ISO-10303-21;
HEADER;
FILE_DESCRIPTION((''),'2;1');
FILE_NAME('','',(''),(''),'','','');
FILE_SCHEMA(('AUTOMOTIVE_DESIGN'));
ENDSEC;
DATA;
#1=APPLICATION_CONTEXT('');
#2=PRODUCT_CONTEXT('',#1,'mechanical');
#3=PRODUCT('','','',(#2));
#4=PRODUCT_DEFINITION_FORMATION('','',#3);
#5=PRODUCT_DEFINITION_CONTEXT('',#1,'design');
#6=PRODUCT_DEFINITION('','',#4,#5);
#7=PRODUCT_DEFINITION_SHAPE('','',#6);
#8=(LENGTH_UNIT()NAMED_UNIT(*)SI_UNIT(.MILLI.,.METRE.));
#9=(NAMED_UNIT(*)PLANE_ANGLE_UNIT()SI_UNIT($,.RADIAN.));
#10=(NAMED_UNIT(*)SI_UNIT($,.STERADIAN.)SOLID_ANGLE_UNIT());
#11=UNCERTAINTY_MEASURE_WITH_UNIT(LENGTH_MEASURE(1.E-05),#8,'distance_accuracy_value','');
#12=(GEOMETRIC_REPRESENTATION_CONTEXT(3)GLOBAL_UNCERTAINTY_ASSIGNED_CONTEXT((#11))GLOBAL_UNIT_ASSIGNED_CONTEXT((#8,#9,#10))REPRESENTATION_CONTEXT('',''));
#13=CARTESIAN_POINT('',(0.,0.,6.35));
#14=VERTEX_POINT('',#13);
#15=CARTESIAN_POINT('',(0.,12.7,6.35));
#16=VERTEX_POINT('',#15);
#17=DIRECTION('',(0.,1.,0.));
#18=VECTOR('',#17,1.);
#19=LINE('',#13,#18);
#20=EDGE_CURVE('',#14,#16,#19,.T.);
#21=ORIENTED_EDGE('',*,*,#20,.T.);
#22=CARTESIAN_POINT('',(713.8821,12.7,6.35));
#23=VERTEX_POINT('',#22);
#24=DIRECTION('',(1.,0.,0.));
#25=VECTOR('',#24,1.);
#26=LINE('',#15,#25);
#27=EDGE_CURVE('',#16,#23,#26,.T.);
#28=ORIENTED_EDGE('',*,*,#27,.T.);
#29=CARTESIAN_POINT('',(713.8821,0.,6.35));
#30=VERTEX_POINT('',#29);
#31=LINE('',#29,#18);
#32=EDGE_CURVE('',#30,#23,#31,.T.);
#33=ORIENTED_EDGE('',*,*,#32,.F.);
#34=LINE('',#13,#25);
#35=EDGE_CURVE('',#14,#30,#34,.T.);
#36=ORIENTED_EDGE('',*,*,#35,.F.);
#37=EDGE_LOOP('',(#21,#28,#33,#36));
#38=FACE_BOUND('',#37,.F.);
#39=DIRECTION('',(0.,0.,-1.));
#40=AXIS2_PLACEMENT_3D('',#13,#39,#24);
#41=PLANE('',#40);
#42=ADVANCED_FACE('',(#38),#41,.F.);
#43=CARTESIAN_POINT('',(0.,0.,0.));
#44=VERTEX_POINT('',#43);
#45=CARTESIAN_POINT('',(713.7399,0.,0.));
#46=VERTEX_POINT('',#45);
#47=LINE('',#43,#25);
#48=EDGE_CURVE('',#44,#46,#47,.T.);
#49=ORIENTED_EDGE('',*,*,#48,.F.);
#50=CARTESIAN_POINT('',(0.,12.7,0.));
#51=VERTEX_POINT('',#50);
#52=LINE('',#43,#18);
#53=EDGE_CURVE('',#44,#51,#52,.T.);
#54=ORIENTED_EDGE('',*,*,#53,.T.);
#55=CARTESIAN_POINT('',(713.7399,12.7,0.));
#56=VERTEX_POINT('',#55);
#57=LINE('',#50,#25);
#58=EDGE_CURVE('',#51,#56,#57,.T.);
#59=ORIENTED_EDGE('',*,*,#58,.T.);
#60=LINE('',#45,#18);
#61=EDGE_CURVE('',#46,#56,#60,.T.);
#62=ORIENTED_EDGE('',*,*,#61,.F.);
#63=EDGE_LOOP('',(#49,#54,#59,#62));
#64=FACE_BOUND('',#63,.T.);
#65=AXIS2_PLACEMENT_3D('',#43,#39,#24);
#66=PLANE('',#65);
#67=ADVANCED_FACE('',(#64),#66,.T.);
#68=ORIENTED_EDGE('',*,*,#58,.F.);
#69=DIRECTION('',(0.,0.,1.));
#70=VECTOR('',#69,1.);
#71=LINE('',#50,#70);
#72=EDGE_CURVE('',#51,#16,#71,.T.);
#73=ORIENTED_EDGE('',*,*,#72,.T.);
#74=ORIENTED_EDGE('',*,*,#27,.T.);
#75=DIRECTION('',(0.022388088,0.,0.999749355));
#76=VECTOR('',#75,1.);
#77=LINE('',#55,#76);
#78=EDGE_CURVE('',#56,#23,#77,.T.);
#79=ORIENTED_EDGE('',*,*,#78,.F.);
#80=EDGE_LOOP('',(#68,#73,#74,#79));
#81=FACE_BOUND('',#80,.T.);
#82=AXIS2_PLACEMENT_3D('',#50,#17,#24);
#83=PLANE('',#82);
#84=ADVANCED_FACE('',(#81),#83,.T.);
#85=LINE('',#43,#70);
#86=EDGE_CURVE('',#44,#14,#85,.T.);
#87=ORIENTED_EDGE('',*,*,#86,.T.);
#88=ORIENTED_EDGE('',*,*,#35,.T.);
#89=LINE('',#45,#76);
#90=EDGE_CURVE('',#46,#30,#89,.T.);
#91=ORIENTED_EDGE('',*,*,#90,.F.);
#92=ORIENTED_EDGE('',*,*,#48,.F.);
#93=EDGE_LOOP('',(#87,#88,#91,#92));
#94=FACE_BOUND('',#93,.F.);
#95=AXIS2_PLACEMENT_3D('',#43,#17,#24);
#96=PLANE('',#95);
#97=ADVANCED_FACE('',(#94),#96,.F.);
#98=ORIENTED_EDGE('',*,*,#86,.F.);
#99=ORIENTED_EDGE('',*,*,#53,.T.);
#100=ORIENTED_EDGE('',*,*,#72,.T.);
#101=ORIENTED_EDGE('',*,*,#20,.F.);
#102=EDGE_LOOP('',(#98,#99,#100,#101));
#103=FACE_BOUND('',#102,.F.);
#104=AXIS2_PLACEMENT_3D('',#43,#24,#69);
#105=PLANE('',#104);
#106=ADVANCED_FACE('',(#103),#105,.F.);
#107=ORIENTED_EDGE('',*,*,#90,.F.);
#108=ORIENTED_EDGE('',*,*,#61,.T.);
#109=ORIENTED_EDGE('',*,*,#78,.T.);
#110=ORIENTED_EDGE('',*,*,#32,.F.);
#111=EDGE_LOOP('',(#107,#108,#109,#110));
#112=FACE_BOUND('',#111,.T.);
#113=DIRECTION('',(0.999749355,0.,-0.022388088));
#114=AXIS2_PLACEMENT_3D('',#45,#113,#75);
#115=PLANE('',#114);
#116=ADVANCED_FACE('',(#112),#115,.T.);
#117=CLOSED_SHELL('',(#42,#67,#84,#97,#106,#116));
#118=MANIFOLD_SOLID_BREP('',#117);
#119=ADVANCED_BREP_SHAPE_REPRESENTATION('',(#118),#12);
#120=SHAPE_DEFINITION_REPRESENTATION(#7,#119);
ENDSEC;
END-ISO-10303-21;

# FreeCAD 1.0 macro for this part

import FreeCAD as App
import Part
import Sketcher
from FreeCAD import Vector
Q = App.Units.Quantity

doc = App.newDocument("Part")
body = doc.addObject("PartDesign::Body", "Body")

# Sketch on XZ plane
sketch1 = doc.addObject("Sketcher::SketchObject", "Sketch")
body.addObject(sketch1)
sketch1.AttachmentSupport = (doc.XZ_Plane, [""])
sketch1.MapMode = "FlatFace"
sketch1.addGeometry([
    Part.LineSegment(Vector(713.7399, 0, 0), Vector(0, 0, 0)),
    Part.LineSegment(Vector(0, 0, 0), Vector(0, 6.35, 0)),
    Part.LineSegment(Vector(0, 6.35, 0), Vector(713.8821, 6.35, 0)),
    Part.LineSegment(Vector(713.8821, 6.35, 0), Vector(713.7399, 0, 0)),
], False)
sketch1.addConstraint([
    Sketcher.Constraint("Coincident", 0, 2, 1, 1),
    Sketcher.Constraint("Coincident", 1, 2, 2, 1),
    Sketcher.Constraint("Coincident", 2, 2, 3, 1),
    Sketcher.Constraint("Coincident", 3, 2, 0, 1),
    Sketcher.Constraint("Horizontal", 0),
    Sketcher.Constraint("Vertical", 1),
    Sketcher.Constraint("Horizontal", 2),
    Sketcher.Constraint("Coincident", 0, 2, -1, 1),
    Sketcher.Constraint("DistanceY", 1, 1, 1, 2, Q("0.25 in")),
    Sketcher.Constraint("DistanceX", 0, 2, 0, 1, Q("28.1 in")),
    Sketcher.Constraint("DistanceX", 2, 1, 2, 2, Q("28.1056 in")),
])
pad1 = doc.addObject("PartDesign::Pad", "Pad")
body.addObject(pad1)
pad1.Profile = sketch1
pad1.Length = Q("0.5 in")
pad1.Reversed = True

doc.recompute()
